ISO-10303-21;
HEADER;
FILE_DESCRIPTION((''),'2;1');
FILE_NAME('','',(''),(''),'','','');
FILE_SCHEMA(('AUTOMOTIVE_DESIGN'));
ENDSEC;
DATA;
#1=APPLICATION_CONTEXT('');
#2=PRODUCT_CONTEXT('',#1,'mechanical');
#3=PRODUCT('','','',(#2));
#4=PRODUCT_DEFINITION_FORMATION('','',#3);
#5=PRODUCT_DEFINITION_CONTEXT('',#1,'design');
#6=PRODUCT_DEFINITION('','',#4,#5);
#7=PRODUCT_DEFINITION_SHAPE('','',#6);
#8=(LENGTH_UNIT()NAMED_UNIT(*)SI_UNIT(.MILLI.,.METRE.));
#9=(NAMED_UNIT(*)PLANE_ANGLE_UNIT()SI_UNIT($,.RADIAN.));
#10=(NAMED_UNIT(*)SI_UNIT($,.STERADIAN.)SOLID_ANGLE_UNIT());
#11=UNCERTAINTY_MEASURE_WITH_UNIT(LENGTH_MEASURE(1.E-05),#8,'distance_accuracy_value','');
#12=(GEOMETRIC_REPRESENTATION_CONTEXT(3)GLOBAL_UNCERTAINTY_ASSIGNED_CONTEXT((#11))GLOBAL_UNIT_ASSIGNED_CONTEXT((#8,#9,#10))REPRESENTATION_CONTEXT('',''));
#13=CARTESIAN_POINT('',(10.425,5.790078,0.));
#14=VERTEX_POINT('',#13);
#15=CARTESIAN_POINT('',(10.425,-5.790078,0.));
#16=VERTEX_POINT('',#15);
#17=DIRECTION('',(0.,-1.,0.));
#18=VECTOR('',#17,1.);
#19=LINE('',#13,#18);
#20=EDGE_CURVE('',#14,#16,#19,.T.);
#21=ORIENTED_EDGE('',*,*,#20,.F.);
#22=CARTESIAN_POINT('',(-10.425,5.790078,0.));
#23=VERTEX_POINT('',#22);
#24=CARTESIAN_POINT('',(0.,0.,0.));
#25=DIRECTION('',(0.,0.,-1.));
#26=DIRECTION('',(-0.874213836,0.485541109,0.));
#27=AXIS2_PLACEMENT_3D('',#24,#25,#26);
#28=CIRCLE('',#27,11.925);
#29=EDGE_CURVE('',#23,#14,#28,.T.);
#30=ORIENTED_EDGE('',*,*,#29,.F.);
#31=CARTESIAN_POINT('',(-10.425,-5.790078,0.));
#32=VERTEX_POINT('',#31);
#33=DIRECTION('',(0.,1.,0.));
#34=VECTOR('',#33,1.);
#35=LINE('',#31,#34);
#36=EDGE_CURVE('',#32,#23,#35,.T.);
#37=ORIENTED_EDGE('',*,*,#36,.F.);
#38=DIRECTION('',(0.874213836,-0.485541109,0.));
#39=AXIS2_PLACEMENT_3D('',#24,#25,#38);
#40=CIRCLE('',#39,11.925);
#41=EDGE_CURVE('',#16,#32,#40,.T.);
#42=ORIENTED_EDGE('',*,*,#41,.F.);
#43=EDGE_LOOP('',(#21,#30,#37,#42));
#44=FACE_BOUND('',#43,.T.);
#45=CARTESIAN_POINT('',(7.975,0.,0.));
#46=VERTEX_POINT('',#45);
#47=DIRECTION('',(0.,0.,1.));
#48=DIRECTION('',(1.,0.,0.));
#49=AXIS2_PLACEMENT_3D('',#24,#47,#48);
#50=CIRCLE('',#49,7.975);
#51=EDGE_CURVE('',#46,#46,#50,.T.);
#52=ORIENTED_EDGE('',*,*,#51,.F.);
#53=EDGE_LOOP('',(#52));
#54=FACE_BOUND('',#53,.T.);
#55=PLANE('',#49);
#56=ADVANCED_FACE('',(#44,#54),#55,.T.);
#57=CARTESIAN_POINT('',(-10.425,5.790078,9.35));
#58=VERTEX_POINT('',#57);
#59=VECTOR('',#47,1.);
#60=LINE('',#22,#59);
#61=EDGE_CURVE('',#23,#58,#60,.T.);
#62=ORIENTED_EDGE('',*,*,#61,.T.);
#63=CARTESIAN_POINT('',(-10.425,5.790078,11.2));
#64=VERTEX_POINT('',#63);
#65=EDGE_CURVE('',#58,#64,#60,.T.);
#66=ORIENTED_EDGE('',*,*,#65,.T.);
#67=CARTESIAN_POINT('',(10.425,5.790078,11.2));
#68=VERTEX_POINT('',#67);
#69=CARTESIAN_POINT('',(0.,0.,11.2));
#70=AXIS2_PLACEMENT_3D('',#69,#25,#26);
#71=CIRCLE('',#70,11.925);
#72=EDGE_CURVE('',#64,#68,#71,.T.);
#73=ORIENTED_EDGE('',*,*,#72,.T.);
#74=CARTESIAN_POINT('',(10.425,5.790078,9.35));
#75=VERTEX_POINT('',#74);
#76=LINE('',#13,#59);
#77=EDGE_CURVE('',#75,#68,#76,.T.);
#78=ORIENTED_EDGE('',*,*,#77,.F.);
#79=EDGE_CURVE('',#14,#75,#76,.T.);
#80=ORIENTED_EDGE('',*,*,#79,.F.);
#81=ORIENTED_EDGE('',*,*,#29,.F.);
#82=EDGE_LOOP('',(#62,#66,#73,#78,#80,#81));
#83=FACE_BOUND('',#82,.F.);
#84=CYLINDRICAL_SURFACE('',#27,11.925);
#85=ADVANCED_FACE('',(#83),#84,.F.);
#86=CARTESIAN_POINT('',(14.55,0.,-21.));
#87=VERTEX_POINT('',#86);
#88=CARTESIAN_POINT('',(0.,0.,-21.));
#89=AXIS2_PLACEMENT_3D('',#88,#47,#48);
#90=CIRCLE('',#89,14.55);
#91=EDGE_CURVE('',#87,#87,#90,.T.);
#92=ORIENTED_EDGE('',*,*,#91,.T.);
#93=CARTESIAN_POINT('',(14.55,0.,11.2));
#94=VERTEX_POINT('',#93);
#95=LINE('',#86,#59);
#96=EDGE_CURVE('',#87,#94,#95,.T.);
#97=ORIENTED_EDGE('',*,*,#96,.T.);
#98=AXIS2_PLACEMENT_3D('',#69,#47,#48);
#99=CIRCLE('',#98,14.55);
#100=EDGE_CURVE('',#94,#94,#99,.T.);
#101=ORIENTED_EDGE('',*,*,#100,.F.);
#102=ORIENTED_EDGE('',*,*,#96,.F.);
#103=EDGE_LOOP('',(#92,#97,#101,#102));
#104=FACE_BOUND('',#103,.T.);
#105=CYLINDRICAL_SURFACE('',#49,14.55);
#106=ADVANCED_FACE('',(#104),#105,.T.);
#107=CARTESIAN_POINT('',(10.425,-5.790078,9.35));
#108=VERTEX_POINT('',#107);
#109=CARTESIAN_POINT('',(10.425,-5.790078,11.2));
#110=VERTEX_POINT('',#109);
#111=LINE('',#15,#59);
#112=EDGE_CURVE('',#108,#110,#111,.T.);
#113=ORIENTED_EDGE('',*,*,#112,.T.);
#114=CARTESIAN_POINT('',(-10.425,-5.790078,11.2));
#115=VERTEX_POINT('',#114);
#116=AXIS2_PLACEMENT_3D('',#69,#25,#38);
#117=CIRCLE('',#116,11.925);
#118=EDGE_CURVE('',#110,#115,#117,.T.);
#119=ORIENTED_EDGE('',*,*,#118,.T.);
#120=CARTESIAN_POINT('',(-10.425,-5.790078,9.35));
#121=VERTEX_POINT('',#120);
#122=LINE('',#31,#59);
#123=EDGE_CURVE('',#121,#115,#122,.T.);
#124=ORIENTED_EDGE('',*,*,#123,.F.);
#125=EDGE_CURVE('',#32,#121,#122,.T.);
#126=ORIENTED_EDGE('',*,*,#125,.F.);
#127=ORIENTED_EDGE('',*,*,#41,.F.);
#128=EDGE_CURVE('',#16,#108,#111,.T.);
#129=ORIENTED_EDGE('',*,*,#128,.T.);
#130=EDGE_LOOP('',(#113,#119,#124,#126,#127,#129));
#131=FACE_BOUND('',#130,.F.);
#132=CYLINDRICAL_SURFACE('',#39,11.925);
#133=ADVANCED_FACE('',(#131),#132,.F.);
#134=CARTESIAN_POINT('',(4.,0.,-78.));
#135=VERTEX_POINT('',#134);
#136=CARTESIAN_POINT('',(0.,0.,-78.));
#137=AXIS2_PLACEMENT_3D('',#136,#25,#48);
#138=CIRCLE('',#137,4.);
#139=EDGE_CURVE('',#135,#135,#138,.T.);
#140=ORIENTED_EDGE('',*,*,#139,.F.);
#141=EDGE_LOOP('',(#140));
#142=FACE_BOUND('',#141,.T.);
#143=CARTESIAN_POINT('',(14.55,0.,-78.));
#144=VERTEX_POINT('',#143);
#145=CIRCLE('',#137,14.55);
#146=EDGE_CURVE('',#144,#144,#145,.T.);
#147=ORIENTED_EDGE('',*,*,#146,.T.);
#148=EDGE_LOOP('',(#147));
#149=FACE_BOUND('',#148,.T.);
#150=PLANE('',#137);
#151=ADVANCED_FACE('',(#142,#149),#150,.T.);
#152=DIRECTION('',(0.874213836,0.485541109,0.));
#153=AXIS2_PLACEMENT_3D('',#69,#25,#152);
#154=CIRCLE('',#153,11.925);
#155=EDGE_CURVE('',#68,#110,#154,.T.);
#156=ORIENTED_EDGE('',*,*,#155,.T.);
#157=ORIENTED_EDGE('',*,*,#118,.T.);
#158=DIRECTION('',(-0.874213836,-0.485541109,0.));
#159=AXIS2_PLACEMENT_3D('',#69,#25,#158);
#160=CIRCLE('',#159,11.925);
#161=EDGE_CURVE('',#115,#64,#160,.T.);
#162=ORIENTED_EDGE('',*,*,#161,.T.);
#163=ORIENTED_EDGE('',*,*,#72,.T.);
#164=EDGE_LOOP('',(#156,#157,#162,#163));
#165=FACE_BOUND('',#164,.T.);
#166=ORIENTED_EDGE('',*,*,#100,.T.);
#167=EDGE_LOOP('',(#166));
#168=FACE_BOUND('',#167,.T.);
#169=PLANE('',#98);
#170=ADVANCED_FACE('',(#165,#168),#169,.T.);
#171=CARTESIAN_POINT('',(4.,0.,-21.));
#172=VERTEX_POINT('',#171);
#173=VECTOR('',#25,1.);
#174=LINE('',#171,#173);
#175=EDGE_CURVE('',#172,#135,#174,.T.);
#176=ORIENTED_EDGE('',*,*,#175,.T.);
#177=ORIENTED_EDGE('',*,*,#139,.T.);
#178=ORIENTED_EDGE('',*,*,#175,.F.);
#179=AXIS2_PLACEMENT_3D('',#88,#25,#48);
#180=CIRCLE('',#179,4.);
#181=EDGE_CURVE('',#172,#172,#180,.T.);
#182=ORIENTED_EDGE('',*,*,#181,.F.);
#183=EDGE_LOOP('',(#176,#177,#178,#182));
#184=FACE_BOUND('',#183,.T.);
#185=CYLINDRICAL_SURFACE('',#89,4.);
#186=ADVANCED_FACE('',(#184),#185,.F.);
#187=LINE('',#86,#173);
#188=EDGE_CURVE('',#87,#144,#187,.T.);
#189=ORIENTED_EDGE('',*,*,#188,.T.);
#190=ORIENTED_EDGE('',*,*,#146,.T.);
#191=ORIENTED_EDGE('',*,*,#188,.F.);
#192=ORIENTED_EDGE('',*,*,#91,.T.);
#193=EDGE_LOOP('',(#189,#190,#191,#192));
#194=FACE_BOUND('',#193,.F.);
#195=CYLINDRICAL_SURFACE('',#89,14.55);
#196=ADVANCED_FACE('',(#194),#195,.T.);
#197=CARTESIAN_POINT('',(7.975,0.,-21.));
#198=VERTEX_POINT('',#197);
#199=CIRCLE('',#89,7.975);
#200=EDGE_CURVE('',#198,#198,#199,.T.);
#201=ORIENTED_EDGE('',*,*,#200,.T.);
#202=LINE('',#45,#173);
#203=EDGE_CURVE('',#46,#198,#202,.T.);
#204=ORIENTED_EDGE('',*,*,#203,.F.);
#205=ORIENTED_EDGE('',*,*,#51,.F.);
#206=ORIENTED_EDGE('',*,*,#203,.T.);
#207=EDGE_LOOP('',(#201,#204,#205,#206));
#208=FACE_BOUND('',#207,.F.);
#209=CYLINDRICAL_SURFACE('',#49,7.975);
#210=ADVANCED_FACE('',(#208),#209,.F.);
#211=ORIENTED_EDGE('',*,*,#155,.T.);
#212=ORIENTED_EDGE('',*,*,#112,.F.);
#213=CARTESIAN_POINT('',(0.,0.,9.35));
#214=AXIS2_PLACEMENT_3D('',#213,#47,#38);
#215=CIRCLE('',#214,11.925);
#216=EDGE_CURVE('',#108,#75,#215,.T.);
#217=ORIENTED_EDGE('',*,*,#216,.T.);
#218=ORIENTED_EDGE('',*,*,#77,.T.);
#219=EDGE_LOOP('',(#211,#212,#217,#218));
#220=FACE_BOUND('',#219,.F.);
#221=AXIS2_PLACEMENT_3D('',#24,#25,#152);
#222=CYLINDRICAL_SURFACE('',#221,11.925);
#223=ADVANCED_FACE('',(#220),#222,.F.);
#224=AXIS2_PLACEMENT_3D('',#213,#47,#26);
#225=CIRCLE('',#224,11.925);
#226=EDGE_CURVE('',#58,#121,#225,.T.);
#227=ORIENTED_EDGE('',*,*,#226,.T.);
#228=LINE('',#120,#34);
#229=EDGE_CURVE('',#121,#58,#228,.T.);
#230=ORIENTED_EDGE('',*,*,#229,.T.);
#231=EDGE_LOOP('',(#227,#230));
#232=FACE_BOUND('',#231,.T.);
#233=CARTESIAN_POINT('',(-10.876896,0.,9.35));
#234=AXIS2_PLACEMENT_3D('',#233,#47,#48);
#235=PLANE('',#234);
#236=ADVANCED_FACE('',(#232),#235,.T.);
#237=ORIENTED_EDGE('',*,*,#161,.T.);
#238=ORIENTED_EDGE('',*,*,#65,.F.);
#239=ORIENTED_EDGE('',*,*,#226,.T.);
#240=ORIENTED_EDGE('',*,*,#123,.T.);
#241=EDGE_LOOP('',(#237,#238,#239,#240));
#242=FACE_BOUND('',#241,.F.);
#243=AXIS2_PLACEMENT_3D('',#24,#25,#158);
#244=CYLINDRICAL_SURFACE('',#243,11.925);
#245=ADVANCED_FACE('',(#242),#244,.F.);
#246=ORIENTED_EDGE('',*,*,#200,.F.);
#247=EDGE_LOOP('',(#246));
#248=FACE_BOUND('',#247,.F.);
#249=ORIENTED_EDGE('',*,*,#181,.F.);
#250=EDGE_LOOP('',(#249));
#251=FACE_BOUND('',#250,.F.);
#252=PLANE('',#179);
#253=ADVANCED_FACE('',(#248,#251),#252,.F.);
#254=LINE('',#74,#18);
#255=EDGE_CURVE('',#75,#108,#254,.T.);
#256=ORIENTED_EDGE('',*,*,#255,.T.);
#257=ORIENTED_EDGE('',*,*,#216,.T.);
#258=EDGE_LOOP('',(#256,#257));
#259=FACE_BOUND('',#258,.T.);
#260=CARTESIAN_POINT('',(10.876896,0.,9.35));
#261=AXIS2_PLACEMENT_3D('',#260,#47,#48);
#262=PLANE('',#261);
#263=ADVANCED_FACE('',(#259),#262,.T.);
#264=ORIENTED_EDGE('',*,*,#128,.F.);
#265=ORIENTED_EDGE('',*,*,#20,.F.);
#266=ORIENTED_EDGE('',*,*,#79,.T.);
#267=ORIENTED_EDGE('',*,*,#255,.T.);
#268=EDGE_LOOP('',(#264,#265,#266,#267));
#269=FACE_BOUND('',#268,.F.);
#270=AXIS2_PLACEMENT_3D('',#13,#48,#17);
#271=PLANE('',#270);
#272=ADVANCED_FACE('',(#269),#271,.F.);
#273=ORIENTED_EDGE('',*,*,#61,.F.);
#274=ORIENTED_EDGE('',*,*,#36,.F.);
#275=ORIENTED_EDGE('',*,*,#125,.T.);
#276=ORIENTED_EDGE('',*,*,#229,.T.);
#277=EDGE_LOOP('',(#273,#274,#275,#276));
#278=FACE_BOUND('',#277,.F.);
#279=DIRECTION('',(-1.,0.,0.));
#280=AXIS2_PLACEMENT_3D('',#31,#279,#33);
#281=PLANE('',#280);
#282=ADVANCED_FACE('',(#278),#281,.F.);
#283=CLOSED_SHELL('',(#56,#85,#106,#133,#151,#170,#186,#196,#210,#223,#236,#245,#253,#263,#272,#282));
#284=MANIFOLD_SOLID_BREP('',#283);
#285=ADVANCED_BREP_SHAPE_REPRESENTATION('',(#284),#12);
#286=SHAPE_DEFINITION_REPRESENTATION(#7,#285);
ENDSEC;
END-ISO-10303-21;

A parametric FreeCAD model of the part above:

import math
import FreeCAD as App
import Part
import Sketcher

V = App.Vector

doc = App.newDocument("Part")
body = doc.addObject("PartDesign::Body", "Body")

# Sketch on XY plane
sketch1 = body.newObject("Sketcher::SketchObject", "Sketch")
sketch1.AttachmentSupport = (doc.getObject("XY_Plane"), [""])
sketch1.MapMode = "FlatFace"
sketch1.addGeometry([
    Part.Circle(V(0, 0, 0), V(0, 0, 1), 15),  # 0
    Part.ArcOfCircle(Part.Circle(V(0, 0, 0), V(0, 0, 1), 12), math.radians(-29), math.radians(29)),  # 1
    Part.ArcOfCircle(Part.Circle(V(0, 0, 0), V(0, 0, 1), 12), math.radians(-151), math.radians(-29)),  # 2
    Part.ArcOfCircle(Part.Circle(V(0, 0, 0), V(0, 0, 1), 12), math.radians(151), math.radians(209)),  # 3
    Part.ArcOfCircle(Part.Circle(V(0, 0, 0), V(0, 0, 1), 12), math.radians(29), math.radians(151)),  # 4
], False)
sketch1.addConstraint([
    Sketcher.Constraint("Tangent", 1, 1, 2, 2),
    Sketcher.Constraint("Tangent", 2, 1, 3, 2),
    Sketcher.Constraint("Tangent", 3, 1, 4, 2),
    Sketcher.Constraint("Tangent", 4, 1, 1, 2),
    Sketcher.Constraint("Coincident", 0, 3, -1, 1),
    Sketcher.Constraint("Coincident", 1, 3, -1, 1),
    Sketcher.Constraint("Equal", 1, 2),
    Sketcher.Constraint("Horizontal", 1, 1, 2, 1),
    Sketcher.Constraint("Horizontal", 3, 1, 4, 1),
    Sketcher.Constraint("Vertical", 2, 1, 3, 1),
    Sketcher.Constraint("Diameter", 0, 29.1),
    Sketcher.Constraint("Radius", 1, 11.925),
    Sketcher.Constraint("DistanceX", -1, 1, 1, 1, 10.425),
])
pad1 = body.newObject("PartDesign::Pad", "Pad")
pad1.Profile = sketch1
pad1.Length = 11.2

# Sketch on XY plane
sketch2 = body.newObject("Sketcher::SketchObject", "Sketch001")
sketch2.AttachmentSupport = (doc.getObject("XY_Plane"), [""])
sketch2.MapMode = "FlatFace"
sketch2.addGeometry([
    Part.ArcOfCircle(Part.Circle(V(0, 0, 0), V(0, 0, 1), 12), math.radians(151), math.radians(209)),
    Part.LineSegment(V(-10, -6, 0), V(-10, 6, 0)),
    Part.LineSegment(V(10, 6, 0), V(10, -6, 0)),
    Part.ArcOfCircle(Part.Circle(V(0, 0, 0), V(0, 0, 1), 12), math.radians(-29), math.radians(29)),
], False)
sketch2.addConstraint([
    Sketcher.Constraint("Coincident", 0, 1, 1, 2),
    Sketcher.Constraint("Coincident", 1, 1, 0, 2),
    Sketcher.Constraint("Coincident", 2, 1, 3, 2),
    Sketcher.Constraint("Coincident", 3, 1, 2, 2),
    Sketcher.Constraint("Vertical", 1),
    Sketcher.Constraint("Vertical", 2),
    Sketcher.Constraint("Coincident", 0, 3, -1, 1),
    Sketcher.Constraint("Coincident", 3, 3, -1, 1),
    Sketcher.Constraint("Equal", 0, 3),
    Sketcher.Constraint("Horizontal", 0, 1, 2, 1),
    Sketcher.Constraint("Radius", 0, 11.925),
    Sketcher.Constraint("DistanceX", 0, 1, 2, 1, 20.85),
])
pad2 = body.newObject("PartDesign::Pad", "Pad001")
pad2.Profile = sketch2
pad2.Length = 9.35

# Sketch on XY plane
sketch3 = body.newObject("Sketcher::SketchObject", "Sketch002")
sketch3.AttachmentSupport = (doc.getObject("XY_Plane"), [""])
sketch3.MapMode = "FlatFace"
sketch3.addGeometry([
    Part.Circle(V(0, 0, 0), V(0, 0, 1), 15),
    Part.Circle(V(0, 0, 0), V(0, 0, 1), 8),
], False)
sketch3.addConstraint([
    Sketcher.Constraint("Coincident", 0, 3, -1, 1),
    Sketcher.Constraint("Coincident", 1, 3, -1, 1),
    Sketcher.Constraint("Diameter", 0, 29.1),
    Sketcher.Constraint("Diameter", 1, 15.95),
])
pad3 = body.newObject("PartDesign::Pad", "Pad002")
pad3.Profile = sketch3
pad3.Length = 21
pad3.Reversed = True

# Sketch on XY plane
sketch4 = body.newObject("Sketcher::SketchObject", "Sketch003")
sketch4.AttachmentSupport = (doc.getObject("XY_Plane"), [""])
sketch4.MapMode = "FlatFace"
sketch4.AttachmentOffset = App.Placement(V(0, 0, -21), App.Rotation())
sketch4.addGeometry([
    Part.Circle(V(0, 0, 0), V(0, 0, 1), 14.6),
    Part.Circle(V(0, 0, 0), V(0, 0, 1), 4),
], False)
sketch4.addConstraint([
    Sketcher.Constraint("Coincident", 0, 3, -1, 1),
    Sketcher.Constraint("Coincident", 1, 3, -1, 1),
    Sketcher.Constraint("Diameter", 1, 8.0),
    Sketcher.Constraint("Diameter", 0, 29.1),
])
pad4 = body.newObject("PartDesign::Pad", "Pad003")
pad4.Profile = sketch4
pad4.Length = 57
pad4.Reversed = True

doc.recompute()
